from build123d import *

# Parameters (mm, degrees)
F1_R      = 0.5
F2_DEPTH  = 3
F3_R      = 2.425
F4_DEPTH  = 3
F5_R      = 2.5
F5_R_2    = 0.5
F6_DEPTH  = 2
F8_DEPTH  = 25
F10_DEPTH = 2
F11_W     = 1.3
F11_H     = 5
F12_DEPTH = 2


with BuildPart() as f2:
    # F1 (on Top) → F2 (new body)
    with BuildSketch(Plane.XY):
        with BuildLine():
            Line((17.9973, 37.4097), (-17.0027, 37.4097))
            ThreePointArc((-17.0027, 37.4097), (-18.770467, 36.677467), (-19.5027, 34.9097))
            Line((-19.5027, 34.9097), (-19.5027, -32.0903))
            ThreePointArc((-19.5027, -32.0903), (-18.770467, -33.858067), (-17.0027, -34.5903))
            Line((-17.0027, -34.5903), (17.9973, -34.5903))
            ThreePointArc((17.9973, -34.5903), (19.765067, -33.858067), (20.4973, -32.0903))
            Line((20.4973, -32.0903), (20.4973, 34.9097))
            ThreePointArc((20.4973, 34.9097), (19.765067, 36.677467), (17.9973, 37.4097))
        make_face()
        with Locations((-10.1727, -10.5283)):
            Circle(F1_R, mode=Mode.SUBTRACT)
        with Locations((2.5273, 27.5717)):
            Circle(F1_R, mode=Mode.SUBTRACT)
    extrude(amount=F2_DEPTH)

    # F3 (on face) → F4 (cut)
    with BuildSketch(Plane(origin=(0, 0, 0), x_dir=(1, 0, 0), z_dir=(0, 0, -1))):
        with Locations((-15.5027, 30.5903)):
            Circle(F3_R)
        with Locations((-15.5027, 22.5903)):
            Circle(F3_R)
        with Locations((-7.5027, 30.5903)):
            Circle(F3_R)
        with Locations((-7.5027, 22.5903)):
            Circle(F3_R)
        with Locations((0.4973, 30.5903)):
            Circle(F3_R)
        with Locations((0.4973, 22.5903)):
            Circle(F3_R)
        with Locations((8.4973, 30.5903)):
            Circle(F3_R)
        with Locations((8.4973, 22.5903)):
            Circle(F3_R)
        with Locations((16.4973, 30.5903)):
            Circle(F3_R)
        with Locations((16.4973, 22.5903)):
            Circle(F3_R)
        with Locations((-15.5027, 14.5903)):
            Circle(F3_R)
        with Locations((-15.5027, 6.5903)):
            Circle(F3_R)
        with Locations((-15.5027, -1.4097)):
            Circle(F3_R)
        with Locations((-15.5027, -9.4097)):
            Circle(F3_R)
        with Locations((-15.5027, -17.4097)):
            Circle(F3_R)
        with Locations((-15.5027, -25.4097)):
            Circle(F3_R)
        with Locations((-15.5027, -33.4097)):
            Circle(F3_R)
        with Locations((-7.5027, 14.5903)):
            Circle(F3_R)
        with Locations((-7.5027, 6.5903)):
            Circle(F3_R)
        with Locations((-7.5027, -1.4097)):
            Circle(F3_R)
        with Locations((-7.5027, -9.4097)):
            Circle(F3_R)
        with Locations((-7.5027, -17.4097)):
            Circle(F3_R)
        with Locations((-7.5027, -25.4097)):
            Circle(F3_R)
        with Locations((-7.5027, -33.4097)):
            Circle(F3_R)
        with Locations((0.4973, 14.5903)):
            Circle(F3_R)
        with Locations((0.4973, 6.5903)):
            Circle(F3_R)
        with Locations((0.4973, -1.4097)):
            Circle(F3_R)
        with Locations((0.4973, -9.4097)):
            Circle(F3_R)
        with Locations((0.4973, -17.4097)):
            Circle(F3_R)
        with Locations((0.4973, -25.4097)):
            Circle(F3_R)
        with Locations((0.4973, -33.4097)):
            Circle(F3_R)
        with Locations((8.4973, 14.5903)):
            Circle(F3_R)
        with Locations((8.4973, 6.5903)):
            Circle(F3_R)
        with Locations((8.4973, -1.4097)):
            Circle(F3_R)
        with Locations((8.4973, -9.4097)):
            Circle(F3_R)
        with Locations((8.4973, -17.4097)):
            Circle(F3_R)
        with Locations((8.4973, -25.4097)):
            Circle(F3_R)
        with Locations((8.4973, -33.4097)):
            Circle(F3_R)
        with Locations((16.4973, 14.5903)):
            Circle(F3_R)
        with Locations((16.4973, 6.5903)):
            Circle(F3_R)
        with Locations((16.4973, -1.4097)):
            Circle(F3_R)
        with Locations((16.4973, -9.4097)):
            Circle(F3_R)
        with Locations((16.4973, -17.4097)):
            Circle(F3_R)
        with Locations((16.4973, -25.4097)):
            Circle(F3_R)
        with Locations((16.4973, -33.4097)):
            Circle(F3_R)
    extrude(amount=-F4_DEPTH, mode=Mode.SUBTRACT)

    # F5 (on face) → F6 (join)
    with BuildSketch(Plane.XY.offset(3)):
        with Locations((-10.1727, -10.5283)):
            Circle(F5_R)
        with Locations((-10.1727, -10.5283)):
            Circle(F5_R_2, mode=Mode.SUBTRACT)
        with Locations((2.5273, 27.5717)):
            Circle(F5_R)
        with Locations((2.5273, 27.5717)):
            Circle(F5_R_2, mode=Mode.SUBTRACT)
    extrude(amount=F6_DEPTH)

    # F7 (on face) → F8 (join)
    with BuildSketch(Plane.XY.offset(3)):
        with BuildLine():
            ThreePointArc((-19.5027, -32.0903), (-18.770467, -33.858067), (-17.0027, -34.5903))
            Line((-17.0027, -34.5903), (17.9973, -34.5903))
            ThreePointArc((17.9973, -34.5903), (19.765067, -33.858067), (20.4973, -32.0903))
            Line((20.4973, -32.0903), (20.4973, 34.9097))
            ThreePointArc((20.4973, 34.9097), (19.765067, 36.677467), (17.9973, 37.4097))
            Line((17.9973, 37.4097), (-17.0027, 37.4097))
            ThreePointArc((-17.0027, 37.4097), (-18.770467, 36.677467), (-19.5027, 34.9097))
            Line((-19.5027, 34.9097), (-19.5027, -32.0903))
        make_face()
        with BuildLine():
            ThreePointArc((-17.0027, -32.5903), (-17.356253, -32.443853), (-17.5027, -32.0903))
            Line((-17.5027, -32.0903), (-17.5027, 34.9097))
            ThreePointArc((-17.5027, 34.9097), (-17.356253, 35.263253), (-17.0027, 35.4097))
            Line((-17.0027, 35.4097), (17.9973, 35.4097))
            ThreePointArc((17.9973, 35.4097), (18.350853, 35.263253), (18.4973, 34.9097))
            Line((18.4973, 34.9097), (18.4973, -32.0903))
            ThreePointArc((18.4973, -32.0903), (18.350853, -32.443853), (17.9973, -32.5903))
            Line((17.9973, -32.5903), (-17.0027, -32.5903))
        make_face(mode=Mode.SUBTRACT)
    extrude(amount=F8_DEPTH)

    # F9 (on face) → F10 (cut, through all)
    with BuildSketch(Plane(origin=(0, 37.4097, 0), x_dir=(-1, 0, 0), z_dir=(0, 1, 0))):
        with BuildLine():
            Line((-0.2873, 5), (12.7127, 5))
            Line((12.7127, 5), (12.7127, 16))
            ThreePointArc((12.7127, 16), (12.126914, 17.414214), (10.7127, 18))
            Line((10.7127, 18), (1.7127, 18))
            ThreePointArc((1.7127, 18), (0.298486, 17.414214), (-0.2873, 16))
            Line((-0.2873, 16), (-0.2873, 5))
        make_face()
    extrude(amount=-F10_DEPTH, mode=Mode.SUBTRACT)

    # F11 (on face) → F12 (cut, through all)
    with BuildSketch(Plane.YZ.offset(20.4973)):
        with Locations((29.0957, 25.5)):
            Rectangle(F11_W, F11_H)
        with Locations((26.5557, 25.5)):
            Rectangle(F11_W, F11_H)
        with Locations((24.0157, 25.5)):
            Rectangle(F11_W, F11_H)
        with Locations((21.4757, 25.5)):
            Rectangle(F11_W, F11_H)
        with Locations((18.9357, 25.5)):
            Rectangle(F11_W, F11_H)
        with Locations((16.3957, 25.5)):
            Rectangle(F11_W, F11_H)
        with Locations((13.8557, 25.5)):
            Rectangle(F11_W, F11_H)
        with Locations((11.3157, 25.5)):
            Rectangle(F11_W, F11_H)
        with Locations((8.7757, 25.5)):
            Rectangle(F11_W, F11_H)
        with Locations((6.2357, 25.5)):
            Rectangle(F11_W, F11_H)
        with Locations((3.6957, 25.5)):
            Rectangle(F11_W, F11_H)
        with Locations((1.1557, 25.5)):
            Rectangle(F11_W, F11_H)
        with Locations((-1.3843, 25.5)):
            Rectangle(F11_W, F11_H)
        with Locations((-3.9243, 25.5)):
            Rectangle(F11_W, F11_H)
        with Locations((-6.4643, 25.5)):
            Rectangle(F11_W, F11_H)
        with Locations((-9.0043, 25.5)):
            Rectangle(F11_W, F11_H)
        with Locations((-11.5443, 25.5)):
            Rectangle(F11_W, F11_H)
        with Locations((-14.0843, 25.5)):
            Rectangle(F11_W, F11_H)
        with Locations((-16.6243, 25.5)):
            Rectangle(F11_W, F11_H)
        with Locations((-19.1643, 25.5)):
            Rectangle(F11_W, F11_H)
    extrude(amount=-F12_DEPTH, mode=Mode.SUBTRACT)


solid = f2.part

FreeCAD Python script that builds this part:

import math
import FreeCAD as App
import Part
import Sketcher

V = App.Vector

doc = App.newDocument("Part")
body = doc.addObject("PartDesign::Body", "Body")

sketch1 = doc.addObject("Sketcher::SketchObject", "Sketch")
body.addObject(sketch1)
sketch1.AttachmentSupport = (doc.XY_Plane, [""])
sketch1.MapMode = "FlatFace"
sketch1.addGeometry(Part.LineSegment(V(18, 37.4, 0), V(-17, 37.4, 0)), False)
sketch1.addGeometry(Part.ArcOfCircle(Part.Circle(V(-17, 34.9, 0), V(0, 0, 1), 2.5), math.radians(90), math.radians(180)), False)
sketch1.addGeometry(Part.LineSegment(V(-19.5, 34.9, 0), V(-19.5, -32.1, 0)), False)
sketch1.addGeometry(Part.ArcOfCircle(Part.Circle(V(-17, -32.1, 0), V(0, 0, 1), 2.5), math.radians(180), math.radians(270)), False)
sketch1.addGeometry(Part.LineSegment(V(-17, -34.6, 0), V(18, -34.6, 0)), False)
sketch1.addGeometry(Part.ArcOfCircle(Part.Circle(V(18, -32.1, 0), V(0, 0, 1), 2.5), math.radians(-90), math.radians(0)), False)
sketch1.addGeometry(Part.LineSegment(V(20.5, -32.1, 0), V(20.5, 34.9, 0)), False)
sketch1.addGeometry(Part.ArcOfCircle(Part.Circle(V(18, 34.9, 0), V(0, 0, 1), 2.5), math.radians(0), math.radians(90)), False)
sketch1.addGeometry(Part.Circle(V(-10.2, -10.5, 0), V(0, 0, 1), 0.5), False)
sketch1.addGeometry(Part.Circle(V(2.5, 27.6, 0), V(0, 0, 1), 0.5), False)
sketch1.addConstraint(Sketcher.Constraint("Tangent", 0, 2, 1, 1))
sketch1.addConstraint(Sketcher.Constraint("Tangent", 1, 2, 2, 1))
sketch1.addConstraint(Sketcher.Constraint("Tangent", 2, 2, 3, 1))
sketch1.addConstraint(Sketcher.Constraint("Tangent", 3, 2, 4, 1))
sketch1.addConstraint(Sketcher.Constraint("Tangent", 4, 2, 5, 1))
sketch1.addConstraint(Sketcher.Constraint("Tangent", 5, 2, 6, 1))
sketch1.addConstraint(Sketcher.Constraint("Tangent", 6, 2, 7, 1))
sketch1.addConstraint(Sketcher.Constraint("Tangent", 7, 2, 0, 1))
sketch1.addConstraint(Sketcher.Constraint("Horizontal", 0))
sketch1.addConstraint(Sketcher.Constraint("Vertical", 2))
sketch1.addConstraint(Sketcher.Constraint("Horizontal", 4))
sketch1.addConstraint(Sketcher.Constraint("Vertical", 6))
sketch1.addConstraint(Sketcher.Constraint("Equal", 1, 3))
sketch1.addConstraint(Sketcher.Constraint("Equal", 3, 5))
sketch1.addConstraint(Sketcher.Constraint("Equal", 5, 7))
sketch1.addConstraint(Sketcher.Constraint("Equal", 8, 9))
sketch1.addConstraint(Sketcher.Constraint("Diameter", 8, 1.0))
sketch1.addConstraint(Sketcher.Constraint("Radius", 1, 2.5))
sketch1.addConstraint(Sketcher.Constraint("DistanceX", 0, 2, 0, 1, 35.0))
sketch1.addConstraint(Sketcher.Constraint("DistanceY", 2, 2, 2, 1, 67.0))
sketch1.addConstraint(Sketcher.Constraint("DistanceX", 8, 3, 9, 3, 12.7))
sketch1.addConstraint(Sketcher.Constraint("DistanceY", 8, 3, 9, 3, 38.1))
sketch1.addConstraint(Sketcher.Constraint("DistanceX", 3, 3, 8, 3, 6.83))
sketch1.addConstraint(Sketcher.Constraint("DistanceY", 3, 3, 8, 3, 21.562))
sketch1.addConstraint(Sketcher.Constraint("DistanceX", 1, 3, -1, 1, 17.0027))
sketch1.addConstraint(Sketcher.Constraint("DistanceY", -1, 1, 1, 3, 34.9097))
pad1 = doc.addObject("PartDesign::Pad", "Pad")
body.addObject(pad1)
pad1.Profile = sketch1
pad1.Length = 3

sketch2 = doc.addObject("Sketcher::SketchObject", "Sketch001")
body.addObject(sketch2)
sketch2.AttachmentSupport = (doc.XY_Plane, [""])
sketch2.MapMode = "FlatFace"
sketch2.addGeometry(Part.Circle(V(-15.5, -30.6, 0), V(0, 0, 1), 2.4), False)
sketch2.addGeometry(Part.Circle(V(-15.5, -22.6, 0), V(0, 0, 1), 2.4), False)
sketch2.addGeometry(Part.Circle(V(-7.5, -30.6, 0), V(0, 0, 1), 2.4), False)
sketch2.addGeometry(Part.Circle(V(-7.5, -22.6, 0), V(0, 0, 1), 2.4), False)
sketch2.addGeometry(Part.Circle(V(0.5, -30.6, 0), V(0, 0, 1), 2.4), False)
sketch2.addGeometry(Part.Circle(V(0.5, -22.6, 0), V(0, 0, 1), 2.4), False)
sketch2.addGeometry(Part.Circle(V(8.5, -30.6, 0), V(0, 0, 1), 2.4), False)
sketch2.addGeometry(Part.Circle(V(8.5, -22.6, 0), V(0, 0, 1), 2.4), False)
sketch2.addGeometry(Part.Circle(V(16.5, -30.6, 0), V(0, 0, 1), 2.4), False)
sketch2.addGeometry(Part.Circle(V(16.5, -22.6, 0), V(0, 0, 1), 2.4), False)
sketch2.addGeometry(Part.Circle(V(-15.5, -14.6, 0), V(0, 0, 1), 2.4), False)
sketch2.addGeometry(Part.Circle(V(-15.5, -6.6, 0), V(0, 0, 1), 2.4), False)
sketch2.addGeometry(Part.Circle(V(-15.5, 1.4, 0), V(0, 0, 1), 2.4), False)
sketch2.addGeometry(Part.Circle(V(-15.5, 9.4, 0), V(0, 0, 1), 2.4), False)
sketch2.addGeometry(Part.Circle(V(-15.5, 17.4, 0), V(0, 0, 1), 2.4), False)
sketch2.addGeometry(Part.Circle(V(-15.5, 25.4, 0), V(0, 0, 1), 2.4), False)
sketch2.addGeometry(Part.Circle(V(-15.5, 33.4, 0), V(0, 0, 1), 2.4), False)
sketch2.addGeometry(Part.Circle(V(-7.5, -14.6, 0), V(0, 0, 1), 2.4), False)
sketch2.addGeometry(Part.Circle(V(-7.5, -6.6, 0), V(0, 0, 1), 2.4), False)
sketch2.addGeometry(Part.Circle(V(-7.5, 1.4, 0), V(0, 0, 1), 2.4), False)
sketch2.addGeometry(Part.Circle(V(-7.5, 9.4, 0), V(0, 0, 1), 2.4), False)
sketch2.addGeometry(Part.Circle(V(-7.5, 17.4, 0), V(0, 0, 1), 2.4), False)
sketch2.addGeometry(Part.Circle(V(-7.5, 25.4, 0), V(0, 0, 1), 2.4), False)
sketch2.addGeometry(Part.Circle(V(-7.5, 33.4, 0), V(0, 0, 1), 2.4), False)
sketch2.addGeometry(Part.Circle(V(0.5, -14.6, 0), V(0, 0, 1), 2.4), False)
sketch2.addGeometry(Part.Circle(V(0.5, -6.6, 0), V(0, 0, 1), 2.4), False)
sketch2.addGeometry(Part.Circle(V(0.5, 1.4, 0), V(0, 0, 1), 2.4), False)
sketch2.addGeometry(Part.Circle(V(0.5, 9.4, 0), V(0, 0, 1), 2.4), False)
sketch2.addGeometry(Part.Circle(V(0.5, 17.4, 0), V(0, 0, 1), 2.4), False)
sketch2.addGeometry(Part.Circle(V(0.5, 25.4, 0), V(0, 0, 1), 2.4), False)
sketch2.addGeometry(Part.Circle(V(0.5, 33.4, 0), V(0, 0, 1), 2.4), False)
sketch2.addGeometry(Part.Circle(V(8.5, -14.6, 0), V(0, 0, 1), 2.4), False)
sketch2.addGeometry(Part.Circle(V(8.5, -6.6, 0), V(0, 0, 1), 2.4), False)
sketch2.addGeometry(Part.Circle(V(8.5, 1.4, 0), V(0, 0, 1), 2.4), False)
sketch2.addGeometry(Part.Circle(V(8.5, 9.4, 0), V(0, 0, 1), 2.4), False)
sketch2.addGeometry(Part.Circle(V(8.5, 17.4, 0), V(0, 0, 1), 2.4), False)
sketch2.addGeometry(Part.Circle(V(8.5, 25.4, 0), V(0, 0, 1), 2.4), False)
sketch2.addGeometry(Part.Circle(V(8.5, 33.4, 0), V(0, 0, 1), 2.4), False)
sketch2.addGeometry(Part.Circle(V(16.5, -14.6, 0), V(0, 0, 1), 2.4), False)
sketch2.addGeometry(Part.Circle(V(16.5, -6.6, 0), V(0, 0, 1), 2.4), False)
sketch2.addGeometry(Part.Circle(V(16.5, 1.4, 0), V(0, 0, 1), 2.4), False)
sketch2.addGeometry(Part.Circle(V(16.5, 9.4, 0), V(0, 0, 1), 2.4), False)
sketch2.addGeometry(Part.Circle(V(16.5, 17.4, 0), V(0, 0, 1), 2.4), False)
sketch2.addGeometry(Part.Circle(V(16.5, 25.4, 0), V(0, 0, 1), 2.4), False)
sketch2.addGeometry(Part.Circle(V(16.5, 33.4, 0), V(0, 0, 1), 2.4), False)
sketch2.addConstraint(Sketcher.Constraint("Equal", 0, 1))
sketch2.addConstraint(Sketcher.Constraint("Equal", 1, 2))
sketch2.addConstraint(Sketcher.Constraint("Equal", 2, 3))
sketch2.addConstraint(Sketcher.Constraint("Equal", 3, 4))
sketch2.addConstraint(Sketcher.Constraint("Equal", 4, 5))
sketch2.addConstraint(Sketcher.Constraint("Equal", 5, 6))
sketch2.addConstraint(Sketcher.Constraint("Equal", 6, 7))
sketch2.addConstraint(Sketcher.Constraint("Equal", 7, 8))
sketch2.addConstraint(Sketcher.Constraint("Equal", 8, 9))
sketch2.addConstraint(Sketcher.Constraint("Equal", 9, 10))
sketch2.addConstraint(Sketcher.Constraint("Equal", 10, 11))
sketch2.addConstraint(Sketcher.Constraint("Equal", 11, 12))
sketch2.addConstraint(Sketcher.Constraint("Equal", 12, 13))
sketch2.addConstraint(Sketcher.Constraint("Equal", 13, 14))
sketch2.addConstraint(Sketcher.Constraint("Equal", 14, 15))
sketch2.addConstraint(Sketcher.Constraint("Equal", 15, 16))
sketch2.addConstraint(Sketcher.Constraint("Equal", 16, 17))
sketch2.addConstraint(Sketcher.Constraint("Equal", 17, 18))
sketch2.addConstraint(Sketcher.Constraint("Equal", 18, 19))
sketch2.addConstraint(Sketcher.Constraint("Equal", 19, 20))
sketch2.addConstraint(Sketcher.Constraint("Equal", 20, 21))
sketch2.addConstraint(Sketcher.Constraint("Equal", 21, 22))
sketch2.addConstraint(Sketcher.Constraint("Equal", 22, 23))
sketch2.addConstraint(Sketcher.Constraint("Equal", 23, 24))
sketch2.addConstraint(Sketcher.Constraint("Equal", 24, 25))
sketch2.addConstraint(Sketcher.Constraint("Equal", 25, 26))
sketch2.addConstraint(Sketcher.Constraint("Equal", 26, 27))
sketch2.addConstraint(Sketcher.Constraint("Equal", 27, 28))
sketch2.addConstraint(Sketcher.Constraint("Equal", 28, 29))
sketch2.addConstraint(Sketcher.Constraint("Equal", 29, 30))
sketch2.addConstraint(Sketcher.Constraint("Equal", 30, 31))
sketch2.addConstraint(Sketcher.Constraint("Equal", 31, 32))
sketch2.addConstraint(Sketcher.Constraint("Equal", 32, 33))
sketch2.addConstraint(Sketcher.Constraint("Equal", 33, 34))
sketch2.addConstraint(Sketcher.Constraint("Equal", 34, 35))
sketch2.addConstraint(Sketcher.Constraint("Equal", 35, 36))
sketch2.addConstraint(Sketcher.Constraint("Equal", 36, 37))
sketch2.addConstraint(Sketcher.Constraint("Equal", 37, 38))
sketch2.addConstraint(Sketcher.Constraint("Equal", 38, 39))
sketch2.addConstraint(Sketcher.Constraint("Equal", 39, 40))
sketch2.addConstraint(Sketcher.Constraint("Equal", 40, 41))
sketch2.addConstraint(Sketcher.Constraint("Equal", 41, 42))
sketch2.addConstraint(Sketcher.Constraint("Equal", 42, 43))
sketch2.addConstraint(Sketcher.Constraint("Equal", 43, 44))
sketch2.addConstraint(Sketcher.Constraint("Horizontal", 0, 3, 2, 3))
sketch2.addConstraint(Sketcher.Constraint("Horizontal", 1, 3, 3, 3))
sketch2.addConstraint(Sketcher.Constraint("Horizontal", 2, 3, 4, 3))
sketch2.addConstraint(Sketcher.Constraint("Horizontal", 3, 3, 5, 3))
sketch2.addConstraint(Sketcher.Constraint("Horizontal", 4, 3, 6, 3))
sketch2.addConstraint(Sketcher.Constraint("Horizontal", 5, 3, 7, 3))
sketch2.addConstraint(Sketcher.Constraint("Horizontal", 6, 3, 8, 3))
sketch2.addConstraint(Sketcher.Constraint("Horizontal", 7, 3, 9, 3))
sketch2.addConstraint(Sketcher.Constraint("Horizontal", 10, 3, 17, 3))
sketch2.addConstraint(Sketcher.Constraint("Horizontal", 11, 3, 18, 3))
sketch2.addConstraint(Sketcher.Constraint("Horizontal", 12, 3, 19, 3))
sketch2.addConstraint(Sketcher.Constraint("Horizontal", 13, 3, 20, 3))
sketch2.addConstraint(Sketcher.Constraint("Horizontal", 14, 3, 21, 3))
sketch2.addConstraint(Sketcher.Constraint("Horizontal", 15, 3, 22, 3))
sketch2.addConstraint(Sketcher.Constraint("Horizontal", 16, 3, 23, 3))
sketch2.addConstraint(Sketcher.Constraint("Horizontal", 17, 3, 24, 3))
sketch2.addConstraint(Sketcher.Constraint("Horizontal", 18, 3, 25, 3))
sketch2.addConstraint(Sketcher.Constraint("Horizontal", 19, 3, 26, 3))
sketch2.addConstraint(Sketcher.Constraint("Horizontal", 20, 3, 27, 3))
sketch2.addConstraint(Sketcher.Constraint("Horizontal", 21, 3, 28, 3))
sketch2.addConstraint(Sketcher.Constraint("Horizontal", 22, 3, 29, 3))
sketch2.addConstraint(Sketcher.Constraint("Horizontal", 23, 3, 30, 3))
sketch2.addConstraint(Sketcher.Constraint("Horizontal", 24, 3, 31, 3))
sketch2.addConstraint(Sketcher.Constraint("Horizontal", 25, 3, 32, 3))
sketch2.addConstraint(Sketcher.Constraint("Horizontal", 26, 3, 33, 3))
sketch2.addConstraint(Sketcher.Constraint("Horizontal", 27, 3, 34, 3))
sketch2.addConstraint(Sketcher.Constraint("Horizontal", 28, 3, 35, 3))
sketch2.addConstraint(Sketcher.Constraint("Horizontal", 29, 3, 36, 3))
sketch2.addConstraint(Sketcher.Constraint("Horizontal", 30, 3, 37, 3))
sketch2.addConstraint(Sketcher.Constraint("Horizontal", 31, 3, 38, 3))
sketch2.addConstraint(Sketcher.Constraint("Horizontal", 32, 3, 39, 3))
sketch2.addConstraint(Sketcher.Constraint("Horizontal", 33, 3, 40, 3))
sketch2.addConstraint(Sketcher.Constraint("Horizontal", 34, 3, 41, 3))
sketch2.addConstraint(Sketcher.Constraint("Horizontal", 35, 3, 42, 3))
sketch2.addConstraint(Sketcher.Constraint("Horizontal", 36, 3, 43, 3))
sketch2.addConstraint(Sketcher.Constraint("Horizontal", 37, 3, 44, 3))
sketch2.addConstraint(Sketcher.Constraint("Vertical", 0, 3, 1, 3))
sketch2.addConstraint(Sketcher.Constraint("Vertical", 2, 3, 3, 3))
sketch2.addConstraint(Sketcher.Constraint("Vertical", 4, 3, 5, 3))
sketch2.addConstraint(Sketcher.Constraint("Vertical", 6, 3, 7, 3))
sketch2.addConstraint(Sketcher.Constraint("Vertical", 8, 3, 9, 3))
sketch2.addConstraint(Sketcher.Constraint("Vertical", 1, 3, 10, 3))
sketch2.addConstraint(Sketcher.Constraint("Vertical", 10, 3, 11, 3))
sketch2.addConstraint(Sketcher.Constraint("Vertical", 11, 3, 12, 3))
sketch2.addConstraint(Sketcher.Constraint("Vertical", 12, 3, 13, 3))
sketch2.addConstraint(Sketcher.Constraint("Vertical", 13, 3, 14, 3))
sketch2.addConstraint(Sketcher.Constraint("Vertical", 14, 3, 15, 3))
sketch2.addConstraint(Sketcher.Constraint("Vertical", 15, 3, 16, 3))
sketch2.addConstraint(Sketcher.Constraint("Vertical", 3, 3, 17, 3))
sketch2.addConstraint(Sketcher.Constraint("Vertical", 17, 3, 18, 3))
sketch2.addConstraint(Sketcher.Constraint("Vertical", 18, 3, 19, 3))
sketch2.addConstraint(Sketcher.Constraint("Vertical", 19, 3, 20, 3))
sketch2.addConstraint(Sketcher.Constraint("Vertical", 20, 3, 21, 3))
sketch2.addConstraint(Sketcher.Constraint("Vertical", 21, 3, 22, 3))
sketch2.addConstraint(Sketcher.Constraint("Vertical", 22, 3, 23, 3))
sketch2.addConstraint(Sketcher.Constraint("Vertical", 5, 3, 24, 3))
sketch2.addConstraint(Sketcher.Constraint("Vertical", 24, 3, 25, 3))
sketch2.addConstraint(Sketcher.Constraint("Vertical", 25, 3, 26, 3))
sketch2.addConstraint(Sketcher.Constraint("Vertical", 26, 3, 27, 3))
sketch2.addConstraint(Sketcher.Constraint("Vertical", 27, 3, 28, 3))
sketch2.addConstraint(Sketcher.Constraint("Vertical", 28, 3, 29, 3))
sketch2.addConstraint(Sketcher.Constraint("Vertical", 29, 3, 30, 3))
sketch2.addConstraint(Sketcher.Constraint("Vertical", 7, 3, 31, 3))
sketch2.addConstraint(Sketcher.Constraint("Vertical", 31, 3, 32, 3))
sketch2.addConstraint(Sketcher.Constraint("Vertical", 32, 3, 33, 3))
sketch2.addConstraint(Sketcher.Constraint("Vertical", 33, 3, 34, 3))
sketch2.addConstraint(Sketcher.Constraint("Vertical", 34, 3, 35, 3))
sketch2.addConstraint(Sketcher.Constraint("Vertical", 35, 3, 36, 3))
sketch2.addConstraint(Sketcher.Constraint("Vertical", 36, 3, 37, 3))
sketch2.addConstraint(Sketcher.Constraint("Vertical", 9, 3, 38, 3))
sketch2.addConstraint(Sketcher.Constraint("Vertical", 38, 3, 39, 3))
sketch2.addConstraint(Sketcher.Constraint("Vertical", 39, 3, 40, 3))
sketch2.addConstraint(Sketcher.Constraint("Vertical", 40, 3, 41, 3))
sketch2.addConstraint(Sketcher.Constraint("Vertical", 41, 3, 42, 3))
sketch2.addConstraint(Sketcher.Constraint("Vertical", 42, 3, 43, 3))
sketch2.addConstraint(Sketcher.Constraint("Vertical", 43, 3, 44, 3))
sketch2.addConstraint(Sketcher.Constraint("Diameter", 0, 4.85))
sketch2.addConstraint(Sketcher.Constraint("DistanceY", 0, 3, 1, 3, 8.0))
sketch2.addConstraint(Sketcher.Constraint("DistanceX", 0, 3, 2, 3, 8.0))
sketch2.addConstraint(Sketcher.Constraint("DistanceX", 2, 3, 4, 3, 8.0))
sketch2.addConstraint(Sketcher.Constraint("DistanceX", 4, 3, 6, 3, 8.0))
sketch2.addConstraint(Sketcher.Constraint("DistanceX", 6, 3, 8, 3, 8.0))
sketch2.addConstraint(Sketcher.Constraint("DistanceY", 1, 3, 10, 3, 8.0))
sketch2.addConstraint(Sketcher.Constraint("DistanceY", 10, 3, 11, 3, 8.0))
sketch2.addConstraint(Sketcher.Constraint("DistanceY", 11, 3, 12, 3, 8.0))
sketch2.addConstraint(Sketcher.Constraint("DistanceY", 12, 3, 13, 3, 8.0))
sketch2.addConstraint(Sketcher.Constraint("DistanceY", 13, 3, 14, 3, 8.0))
sketch2.addConstraint(Sketcher.Constraint("DistanceY", 14, 3, 15, 3, 8.0))
sketch2.addConstraint(Sketcher.Constraint("DistanceY", 15, 3, 16, 3, 8.0))
sketch2.addConstraint(Sketcher.Constraint("DistanceX", 0, 3, -1, 1, 15.5027))
sketch2.addConstraint(Sketcher.Constraint("DistanceY", 0, 3, -1, 1, 30.5903))
pocket1 = doc.addObject("PartDesign::Pocket", "Pocket")
body.addObject(pocket1)
pocket1.Profile = sketch2
pocket1.Length = 3
pocket1.Reversed = True

sketch3 = doc.addObject("Sketcher::SketchObject", "Sketch002")
body.addObject(sketch3)
sketch3.AttachmentSupport = (doc.XY_Plane, [""])
sketch3.MapMode = "FlatFace"
sketch3.AttachmentOffset = App.Placement(V(0, 0, 3), App.Rotation())
sketch3.addGeometry(Part.Circle(V(-10.2, -10.5, 0), V(0, 0, 1), 2.5), False)
sketch3.addGeometry(Part.Circle(V(-10.2, -10.5, 0), V(0, 0, 1), 0.5), False)
sketch3.addGeometry(Part.Circle(V(2.5, 27.6, 0), V(0, 0, 1), 2.5), False)
sketch3.addGeometry(Part.Circle(V(2.5, 27.6, 0), V(0, 0, 1), 0.5), False)
sketch3.addConstraint(Sketcher.Constraint("Coincident", 1, 3, 0, 3))
sketch3.addConstraint(Sketcher.Constraint("Coincident", 3, 3, 2, 3))
sketch3.addConstraint(Sketcher.Constraint("Equal", 0, 2))
sketch3.addConstraint(Sketcher.Constraint("Equal", 1, 3))
sketch3.addConstraint(Sketcher.Constraint("Diameter", 0, 5.0))
sketch3.addConstraint(Sketcher.Constraint("Diameter", 1, 1.0))
sketch3.addConstraint(Sketcher.Constraint("DistanceX", 0, 3, 2, 3, 12.7))
sketch3.addConstraint(Sketcher.Constraint("DistanceY", 0, 3, 2, 3, 38.1))
sketch3.addConstraint(Sketcher.Constraint("DistanceX", 0, 3, -1, 1, 10.1727))
sketch3.addConstraint(Sketcher.Constraint("DistanceY", 0, 3, -1, 1, 10.5283))
pad2 = doc.addObject("PartDesign::Pad", "Pad001")
body.addObject(pad2)
pad2.Profile = sketch3
pad2.Length = 2

sketch4 = doc.addObject("Sketcher::SketchObject", "Sketch003")
body.addObject(sketch4)
sketch4.AttachmentSupport = (doc.XY_Plane, [""])
sketch4.MapMode = "FlatFace"
sketch4.AttachmentOffset = App.Placement(V(0, 0, 3), App.Rotation())
sketch4.addGeometry(Part.ArcOfCircle(Part.Circle(V(-17, -32.1, 0), V(0, 0, 1), 2.5), math.radians(180), math.radians(270)), False)
sketch4.addGeometry(Part.LineSegment(V(-17, -34.6, 0), V(18, -34.6, 0)), False)
sketch4.addGeometry(Part.ArcOfCircle(Part.Circle(V(18, -32.1, 0), V(0, 0, 1), 2.5), math.radians(-90), math.radians(0)), False)
sketch4.addGeometry(Part.LineSegment(V(20.5, -32.1, 0), V(20.5, 34.9, 0)), False)
sketch4.addGeometry(Part.ArcOfCircle(Part.Circle(V(18, 34.9, 0), V(0, 0, 1), 2.5), math.radians(0), math.radians(90)), False)
sketch4.addGeometry(Part.LineSegment(V(18, 37.4, 0), V(-17, 37.4, 0)), False)
sketch4.addGeometry(Part.ArcOfCircle(Part.Circle(V(-17, 34.9, 0), V(0, 0, 1), 2.5), math.radians(90), math.radians(180)), False)
sketch4.addGeometry(Part.LineSegment(V(-19.5, 34.9, 0), V(-19.5, -32.1, 0)), False)
sketch4.addGeometry(Part.LineSegment(V(18, -32.6, 0), V(-17, -32.6, 0)), False)
sketch4.addGeometry(Part.ArcOfCircle(Part.Circle(V(-17, -32.1, 0), V(0, 0, 1), 0.5), math.radians(-180), math.radians(-90)), False)
sketch4.addGeometry(Part.LineSegment(V(-17.5, -32.1, 0), V(-17.5, 34.9, 0)), False)
sketch4.addGeometry(Part.ArcOfCircle(Part.Circle(V(-17, 34.9, 0), V(0, 0, 1), 0.5), math.radians(90), math.radians(180)), False)
sketch4.addGeometry(Part.LineSegment(V(-17, 35.4, 0), V(18, 35.4, 0)), False)
sketch4.addGeometry(Part.ArcOfCircle(Part.Circle(V(18, 34.9, 0), V(0, 0, 1), 0.5), math.radians(0), math.radians(90)), False)
sketch4.addGeometry(Part.LineSegment(V(18.5, 34.9, 0), V(18.5, -32.1, 0)), False)
sketch4.addGeometry(Part.ArcOfCircle(Part.Circle(V(18, -32.1, 0), V(0, 0, 1), 0.5), math.radians(-90), math.radians(0)), False)
sketch4.addConstraint(Sketcher.Constraint("Tangent", 0, 2, 1, 1))
sketch4.addConstraint(Sketcher.Constraint("Tangent", 1, 2, 2, 1))
sketch4.addConstraint(Sketcher.Constraint("Tangent", 2, 2, 3, 1))
sketch4.addConstraint(Sketcher.Constraint("Tangent", 3, 2, 4, 1))
sketch4.addConstraint(Sketcher.Constraint("Tangent", 4, 2, 5, 1))
sketch4.addConstraint(Sketcher.Constraint("Tangent", 5, 2, 6, 1))
sketch4.addConstraint(Sketcher.Constraint("Tangent", 6, 2, 7, 1))
sketch4.addConstraint(Sketcher.Constraint("Tangent", 7, 2, 0, 1))
sketch4.addConstraint(Sketcher.Constraint("Coincident", 8, 2, 9, 2))
sketch4.addConstraint(Sketcher.Constraint("Coincident", 9, 1, 10, 1))
sketch4.addConstraint(Sketcher.Constraint("Coincident", 10, 2, 11, 2))
sketch4.addConstraint(Sketcher.Constraint("Coincident", 11, 1, 12, 1))
sketch4.addConstraint(Sketcher.Constraint("Coincident", 12, 2, 13, 2))
sketch4.addConstraint(Sketcher.Constraint("Coincident", 13, 1, 14, 1))
sketch4.addConstraint(Sketcher.Constraint("Coincident", 14, 2, 15, 2))
sketch4.addConstraint(Sketcher.Constraint("Coincident", 15, 1, 8, 1))
sketch4.addConstraint(Sketcher.Constraint("Horizontal", 1))
sketch4.addConstraint(Sketcher.Constraint("Vertical", 3))
sketch4.addConstraint(Sketcher.Constraint("Horizontal", 5))
sketch4.addConstraint(Sketcher.Constraint("Vertical", 7))
sketch4.addConstraint(Sketcher.Constraint("Horizontal", 8))
sketch4.addConstraint(Sketcher.Constraint("Vertical", 10))
sketch4.addConstraint(Sketcher.Constraint("Horizontal", 12))
sketch4.addConstraint(Sketcher.Constraint("Vertical", 14))
sketch4.addConstraint(Sketcher.Constraint("Coincident", 9, 3, 0, 3))
sketch4.addConstraint(Sketcher.Constraint("Coincident", 11, 3, 6, 3))
sketch4.addConstraint(Sketcher.Constraint("Coincident", 13, 3, 4, 3))
sketch4.addConstraint(Sketcher.Constraint("Equal", 0, 2))
sketch4.addConstraint(Sketcher.Constraint("Equal", 2, 4))
sketch4.addConstraint(Sketcher.Constraint("Equal", 4, 6))
sketch4.addConstraint(Sketcher.Constraint("Equal", 13, 15))
sketch4.addConstraint(Sketcher.Constraint("Horizontal", 7, 2, 9, 1))
sketch4.addConstraint(Sketcher.Constraint("Horizontal", 6, 2, 10, 2))
sketch4.addConstraint(Sketcher.Constraint("Horizontal", 10, 2, 13, 1))
sketch4.addConstraint(Sketcher.Constraint("Horizontal", 9, 1, 14, 2))
sketch4.addConstraint(Sketcher.Constraint("Vertical", 5, 2, 8, 2))
sketch4.addConstraint(Sketcher.Constraint("Vertical", 8, 2, 11, 1))
sketch4.addConstraint(Sketcher.Constraint("Vertical", 4, 2, 12, 2))
sketch4.addConstraint(Sketcher.Constraint("Vertical", 12, 2, 15, 1))
sketch4.addConstraint(Sketcher.Constraint("Radius", 0, 2.5))
sketch4.addConstraint(Sketcher.Constraint("Radius", 9, 0.500001))
sketch4.addConstraint(Sketcher.Constraint("DistanceX", 1, 1, 1, 2, 35.0))
sketch4.addConstraint(Sketcher.Constraint("DistanceY", 3, 1, 3, 2, 67.0))
sketch4.addConstraint(Sketcher.Constraint("DistanceX", 0, 3, -1, 1, 17.0027))
sketch4.addConstraint(Sketcher.Constraint("DistanceY", 0, 3, -1, 1, 32.0903))
pad3 = doc.addObject("PartDesign::Pad", "Pad002")
body.addObject(pad3)
pad3.Profile = sketch4
pad3.Length = 25

sketch5 = doc.addObject("Sketcher::SketchObject", "Sketch004")
body.addObject(sketch5)
sketch5.AttachmentSupport = (doc.XZ_Plane, [""])
sketch5.MapMode = "FlatFace"
sketch5.AttachmentOffset = App.Placement(V(0, 0, -37.4097), App.Rotation())
sketch5.addGeometry(Part.LineSegment(V(0.3, 5, 0), V(-12.7, 5, 0)), False)
sketch5.addGeometry(Part.LineSegment(V(-12.7, 5, 0), V(-12.7, 16, 0)), False)
sketch5.addGeometry(Part.ArcOfCircle(Part.Circle(V(-10.7, 16, 0), V(0, 0, 1), 2), math.radians(90), math.radians(180)), False)
sketch5.addGeometry(Part.LineSegment(V(-10.7, 18, 0), V(-1.7, 18, 0)), False)
sketch5.addGeometry(Part.ArcOfCircle(Part.Circle(V(-1.7, 16, 0), V(0, 0, 1), 2), math.radians(0), math.radians(90)), False)
sketch5.addGeometry(Part.LineSegment(V(0.3, 16, 0), V(0.3, 5, 0)), False)
sketch5.addConstraint(Sketcher.Constraint("Coincident", 0, 2, 1, 1))
sketch5.addConstraint(Sketcher.Constraint("Tangent", 1, 2, 2, 2))
sketch5.addConstraint(Sketcher.Constraint("Tangent", 2, 1, 3, 1))
sketch5.addConstraint(Sketcher.Constraint("Tangent", 3, 2, 4, 2))
sketch5.addConstraint(Sketcher.Constraint("Tangent", 4, 1, 5, 1))
sketch5.addConstraint(Sketcher.Constraint("Coincident", 5, 2, 0, 1))
sketch5.addConstraint(Sketcher.Constraint("Horizontal", 0))
sketch5.addConstraint(Sketcher.Constraint("Vertical", 1))
sketch5.addConstraint(Sketcher.Constraint("Horizontal", 3))
sketch5.addConstraint(Sketcher.Constraint("Vertical", 5))
sketch5.addConstraint(Sketcher.Constraint("Equal", 2, 4))
sketch5.addConstraint(Sketcher.Constraint("Radius", 2, 1.999999))
sketch5.addConstraint(Sketcher.Constraint("DistanceX", 0, 2, 0, 1, 13.0))
sketch5.addConstraint(Sketcher.Constraint("DistanceY", 1, 1, 1, 2, 11.0))
sketch5.addConstraint(Sketcher.Constraint("DistanceY", -1, 1, 2, 3, 16.000001))
sketch5.addConstraint(Sketcher.Constraint("DistanceX", 2, 3, -1, 1, 10.712701))
pocket2 = doc.addObject("PartDesign::Pocket", "Pocket001")
body.addObject(pocket2)
pocket2.Profile = sketch5
pocket2.Length = 2
pocket2.Reversed = True

sketch6 = doc.addObject("Sketcher::SketchObject", "Sketch005")
body.addObject(sketch6)
sketch6.AttachmentSupport = (doc.YZ_Plane, [""])
sketch6.MapMode = "FlatFace"
sketch6.AttachmentOffset = App.Placement(V(0, 0, 20.4973), App.Rotation())
sketch6.addGeometry(Part.LineSegment(V(28.4, 28, 0), V(28.4, 23, 0)), False)
sketch6.addGeometry(Part.LineSegment(V(28.4, 23, 0), V(29.7, 23, 0)), False)
sketch6.addGeometry(Part.LineSegment(V(29.7, 23, 0), V(29.7, 28, 0)), False)
sketch6.addGeometry(Part.LineSegment(V(29.7, 28, 0), V(28.4, 28, 0)), False)
sketch6.addGeometry(Part.LineSegment(V(25.9, 28, 0), V(25.9, 23, 0)), False)
sketch6.addGeometry(Part.LineSegment(V(25.9, 23, 0), V(27.2, 23, 0)), False)
sketch6.addGeometry(Part.LineSegment(V(27.2, 23, 0), V(27.2, 28, 0)), False)
sketch6.addGeometry(Part.LineSegment(V(27.2, 28, 0), V(25.9, 28, 0)), False)
sketch6.addGeometry(Part.LineSegment(V(23.4, 28, 0), V(23.4, 23, 0)), False)
sketch6.addGeometry(Part.LineSegment(V(23.4, 23, 0), V(24.7, 23, 0)), False)
sketch6.addGeometry(Part.LineSegment(V(24.7, 23, 0), V(24.7, 28, 0)), False)
sketch6.addGeometry(Part.LineSegment(V(24.7, 28, 0), V(23.4, 28, 0)), False)
sketch6.addGeometry(Part.LineSegment(V(20.8, 28, 0), V(20.8, 23, 0)), False)
sketch6.addGeometry(Part.LineSegment(V(20.8, 23, 0), V(22.1, 23, 0)), False)
sketch6.addGeometry(Part.LineSegment(V(22.1, 23, 0), V(22.1, 28, 0)), False)
sketch6.addGeometry(Part.LineSegment(V(22.1, 28, 0), V(20.8, 28, 0)), False)
sketch6.addGeometry(Part.LineSegment(V(18.3, 28, 0), V(18.3, 23, 0)), False)
sketch6.addGeometry(Part.LineSegment(V(18.3, 23, 0), V(19.6, 23, 0)), False)
sketch6.addGeometry(Part.LineSegment(V(19.6, 23, 0), V(19.6, 28, 0)), False)
sketch6.addGeometry(Part.LineSegment(V(19.6, 28, 0), V(18.3, 28, 0)), False)
sketch6.addGeometry(Part.LineSegment(V(15.7, 28, 0), V(15.7, 23, 0)), False)
sketch6.addGeometry(Part.LineSegment(V(15.7, 23, 0), V(17, 23, 0)), False)
sketch6.addGeometry(Part.LineSegment(V(17, 23, 0), V(17, 28, 0)), False)
sketch6.addGeometry(Part.LineSegment(V(17, 28, 0), V(15.7, 28, 0)), False)
sketch6.addGeometry(Part.LineSegment(V(13.2, 28, 0), V(13.2, 23, 0)), False)
sketch6.addGeometry(Part.LineSegment(V(13.2, 23, 0), V(14.5, 23, 0)), False)
sketch6.addGeometry(Part.LineSegment(V(14.5, 23, 0), V(14.5, 28, 0)), False)
sketch6.addGeometry(Part.LineSegment(V(14.5, 28, 0), V(13.2, 28, 0)), False)
sketch6.addGeometry(Part.LineSegment(V(10.7, 28, 0), V(10.7, 23, 0)), False)
sketch6.addGeometry(Part.LineSegment(V(10.7, 23, 0), V(12, 23, 0)), False)
sketch6.addGeometry(Part.LineSegment(V(12, 23, 0), V(12, 28, 0)), False)
sketch6.addGeometry(Part.LineSegment(V(12, 28, 0), V(10.7, 28, 0)), False)
sketch6.addGeometry(Part.LineSegment(V(8.1, 28, 0), V(8.1, 23, 0)), False)
sketch6.addGeometry(Part.LineSegment(V(8.1, 23, 0), V(9.4, 23, 0)), False)
sketch6.addGeometry(Part.LineSegment(V(9.4, 23, 0), V(9.4, 28, 0)), False)
sketch6.addGeometry(Part.LineSegment(V(9.4, 28, 0), V(8.1, 28, 0)), False)
sketch6.addGeometry(Part.LineSegment(V(5.6, 28, 0), V(5.6, 23, 0)), False)
sketch6.addGeometry(Part.LineSegment(V(5.6, 23, 0), V(6.9, 23, 0)), False)
sketch6.addGeometry(Part.LineSegment(V(6.9, 23, 0), V(6.9, 28, 0)), False)
sketch6.addGeometry(Part.LineSegment(V(6.9, 28, 0), V(5.6, 28, 0)), False)
sketch6.addGeometry(Part.LineSegment(V(3, 28, 0), V(3, 23, 0)), False)
sketch6.addGeometry(Part.LineSegment(V(3, 23, 0), V(4.3, 23, 0)), False)
sketch6.addGeometry(Part.LineSegment(V(4.3, 23, 0), V(4.3, 28, 0)), False)
sketch6.addGeometry(Part.LineSegment(V(4.3, 28, 0), V(3, 28, 0)), False)
sketch6.addGeometry(Part.LineSegment(V(0.5, 28, 0), V(0.5, 23, 0)), False)
sketch6.addGeometry(Part.LineSegment(V(0.5, 23, 0), V(1.8, 23, 0)), False)
sketch6.addGeometry(Part.LineSegment(V(1.8, 23, 0), V(1.8, 28, 0)), False)
sketch6.addGeometry(Part.LineSegment(V(1.8, 28, 0), V(0.5, 28, 0)), False)
sketch6.addGeometry(Part.LineSegment(V(-2, 28, 0), V(-2, 23, 0)), False)
sketch6.addGeometry(Part.LineSegment(V(-2, 23, 0), V(-0.7, 23, 0)), False)
sketch6.addGeometry(Part.LineSegment(V(-0.7, 23, 0), V(-0.7, 28, 0)), False)
sketch6.addGeometry(Part.LineSegment(V(-0.7, 28, 0), V(-2, 28, 0)), False)
sketch6.addGeometry(Part.LineSegment(V(-4.6, 28, 0), V(-4.6, 23, 0)), False)
sketch6.addGeometry(Part.LineSegment(V(-4.6, 23, 0), V(-3.3, 23, 0)), False)
sketch6.addGeometry(Part.LineSegment(V(-3.3, 23, 0), V(-3.3, 28, 0)), False)
sketch6.addGeometry(Part.LineSegment(V(-3.3, 28, 0), V(-4.6, 28, 0)), False)
sketch6.addGeometry(Part.LineSegment(V(-7.1, 28, 0), V(-7.1, 23, 0)), False)
sketch6.addGeometry(Part.LineSegment(V(-7.1, 23, 0), V(-5.8, 23, 0)), False)
sketch6.addGeometry(Part.LineSegment(V(-5.8, 23, 0), V(-5.8, 28, 0)), False)
sketch6.addGeometry(Part.LineSegment(V(-5.8, 28, 0), V(-7.1, 28, 0)), False)
sketch6.addGeometry(Part.LineSegment(V(-9.7, 28, 0), V(-9.7, 23, 0)), False)
sketch6.addGeometry(Part.LineSegment(V(-9.7, 23, 0), V(-8.4, 23, 0)), False)
sketch6.addGeometry(Part.LineSegment(V(-8.4, 23, 0), V(-8.4, 28, 0)), False)
sketch6.addGeometry(Part.LineSegment(V(-8.4, 28, 0), V(-9.7, 28, 0)), False)
sketch6.addGeometry(Part.LineSegment(V(-12.2, 28, 0), V(-12.2, 23, 0)), False)
sketch6.addGeometry(Part.LineSegment(V(-12.2, 23, 0), V(-10.9, 23, 0)), False)
sketch6.addGeometry(Part.LineSegment(V(-10.9, 23, 0), V(-10.9, 28, 0)), False)
sketch6.addGeometry(Part.LineSegment(V(-10.9, 28, 0), V(-12.2, 28, 0)), False)
sketch6.addGeometry(Part.LineSegment(V(-14.7, 28, 0), V(-14.7, 23, 0)), False)
sketch6.addGeometry(Part.LineSegment(V(-14.7, 23, 0), V(-13.4, 23, 0)), False)
sketch6.addGeometry(Part.LineSegment(V(-13.4, 23, 0), V(-13.4, 28, 0)), False)
sketch6.addGeometry(Part.LineSegment(V(-13.4, 28, 0), V(-14.7, 28, 0)), False)
sketch6.addGeometry(Part.LineSegment(V(-17.3, 28, 0), V(-17.3, 23, 0)), False)
sketch6.addGeometry(Part.LineSegment(V(-17.3, 23, 0), V(-16, 23, 0)), False)
sketch6.addGeometry(Part.LineSegment(V(-16, 23, 0), V(-16, 28, 0)), False)
sketch6.addGeometry(Part.LineSegment(V(-16, 28, 0), V(-17.3, 28, 0)), False)
sketch6.addGeometry(Part.LineSegment(V(-19.8, 28, 0), V(-19.8, 23, 0)), False)
sketch6.addGeometry(Part.LineSegment(V(-19.8, 23, 0), V(-18.5, 23, 0)), False)
sketch6.addGeometry(Part.LineSegment(V(-18.5, 23, 0), V(-18.5, 28, 0)), False)
sketch6.addGeometry(Part.LineSegment(V(-18.5, 28, 0), V(-19.8, 28, 0)), False)
sketch6.addConstraint(Sketcher.Constraint("Coincident", 0, 2, 1, 1))
sketch6.addConstraint(Sketcher.Constraint("Coincident", 1, 2, 2, 1))
sketch6.addConstraint(Sketcher.Constraint("Coincident", 2, 2, 3, 1))
sketch6.addConstraint(Sketcher.Constraint("Coincident", 3, 2, 0, 1))
sketch6.addConstraint(Sketcher.Constraint("Coincident", 4, 2, 5, 1))
sketch6.addConstraint(Sketcher.Constraint("Coincident", 5, 2, 6, 1))
sketch6.addConstraint(Sketcher.Constraint("Coincident", 6, 2, 7, 1))
sketch6.addConstraint(Sketcher.Constraint("Coincident", 7, 2, 4, 1))
sketch6.addConstraint(Sketcher.Constraint("Coincident", 8, 2, 9, 1))
sketch6.addConstraint(Sketcher.Constraint("Coincident", 9, 2, 10, 1))
sketch6.addConstraint(Sketcher.Constraint("Coincident", 10, 2, 11, 1))
sketch6.addConstraint(Sketcher.Constraint("Coincident", 11, 2, 8, 1))
sketch6.addConstraint(Sketcher.Constraint("Coincident", 12, 2, 13, 1))
sketch6.addConstraint(Sketcher.Constraint("Coincident", 13, 2, 14, 1))
sketch6.addConstraint(Sketcher.Constraint("Coincident", 14, 2, 15, 1))
sketch6.addConstraint(Sketcher.Constraint("Coincident", 15, 2, 12, 1))
sketch6.addConstraint(Sketcher.Constraint("Coincident", 16, 2, 17, 1))
sketch6.addConstraint(Sketcher.Constraint("Coincident", 17, 2, 18, 1))
sketch6.addConstraint(Sketcher.Constraint("Coincident", 18, 2, 19, 1))
sketch6.addConstraint(Sketcher.Constraint("Coincident", 19, 2, 16, 1))
sketch6.addConstraint(Sketcher.Constraint("Coincident", 20, 2, 21, 1))
sketch6.addConstraint(Sketcher.Constraint("Coincident", 21, 2, 22, 1))
sketch6.addConstraint(Sketcher.Constraint("Coincident", 22, 2, 23, 1))
sketch6.addConstraint(Sketcher.Constraint("Coincident", 23, 2, 20, 1))
sketch6.addConstraint(Sketcher.Constraint("Coincident", 24, 2, 25, 1))
sketch6.addConstraint(Sketcher.Constraint("Coincident", 25, 2, 26, 1))
sketch6.addConstraint(Sketcher.Constraint("Coincident", 26, 2, 27, 1))
sketch6.addConstraint(Sketcher.Constraint("Coincident", 27, 2, 24, 1))
sketch6.addConstraint(Sketcher.Constraint("Coincident", 28, 2, 29, 1))
sketch6.addConstraint(Sketcher.Constraint("Coincident", 29, 2, 30, 1))
sketch6.addConstraint(Sketcher.Constraint("Coincident", 30, 2, 31, 1))
sketch6.addConstraint(Sketcher.Constraint("Coincident", 31, 2, 28, 1))
sketch6.addConstraint(Sketcher.Constraint("Coincident", 32, 2, 33, 1))
sketch6.addConstraint(Sketcher.Constraint("Coincident", 33, 2, 34, 1))
sketch6.addConstraint(Sketcher.Constraint("Coincident", 34, 2, 35, 1))
sketch6.addConstraint(Sketcher.Constraint("Coincident", 35, 2, 32, 1))
sketch6.addConstraint(Sketcher.Constraint("Coincident", 36, 2, 37, 1))
sketch6.addConstraint(Sketcher.Constraint("Coincident", 37, 2, 38, 1))
sketch6.addConstraint(Sketcher.Constraint("Coincident", 38, 2, 39, 1))
sketch6.addConstraint(Sketcher.Constraint("Coincident", 39, 2, 36, 1))
sketch6.addConstraint(Sketcher.Constraint("Coincident", 40, 2, 41, 1))
sketch6.addConstraint(Sketcher.Constraint("Coincident", 41, 2, 42, 1))
sketch6.addConstraint(Sketcher.Constraint("Coincident", 42, 2, 43, 1))
sketch6.addConstraint(Sketcher.Constraint("Coincident", 43, 2, 40, 1))
sketch6.addConstraint(Sketcher.Constraint("Coincident", 44, 2, 45, 1))
sketch6.addConstraint(Sketcher.Constraint("Coincident", 45, 2, 46, 1))
sketch6.addConstraint(Sketcher.Constraint("Coincident", 46, 2, 47, 1))
sketch6.addConstraint(Sketcher.Constraint("Coincident", 47, 2, 44, 1))
sketch6.addConstraint(Sketcher.Constraint("Coincident", 48, 2, 49, 1))
sketch6.addConstraint(Sketcher.Constraint("Coincident", 49, 2, 50, 1))
sketch6.addConstraint(Sketcher.Constraint("Coincident", 50, 2, 51, 1))
sketch6.addConstraint(Sketcher.Constraint("Coincident", 51, 2, 48, 1))
sketch6.addConstraint(Sketcher.Constraint("Coincident", 52, 2, 53, 1))
sketch6.addConstraint(Sketcher.Constraint("Coincident", 53, 2, 54, 1))
sketch6.addConstraint(Sketcher.Constraint("Coincident", 54, 2, 55, 1))
sketch6.addConstraint(Sketcher.Constraint("Coincident", 55, 2, 52, 1))
sketch6.addConstraint(Sketcher.Constraint("Coincident", 56, 2, 57, 1))
sketch6.addConstraint(Sketcher.Constraint("Coincident", 57, 2, 58, 1))
sketch6.addConstraint(Sketcher.Constraint("Coincident", 58, 2, 59, 1))
sketch6.addConstraint(Sketcher.Constraint("Coincident", 59, 2, 56, 1))
sketch6.addConstraint(Sketcher.Constraint("Coincident", 60, 2, 61, 1))
sketch6.addConstraint(Sketcher.Constraint("Coincident", 61, 2, 62, 1))
sketch6.addConstraint(Sketcher.Constraint("Coincident", 62, 2, 63, 1))
sketch6.addConstraint(Sketcher.Constraint("Coincident", 63, 2, 60, 1))
sketch6.addConstraint(Sketcher.Constraint("Coincident", 64, 2, 65, 1))
sketch6.addConstraint(Sketcher.Constraint("Coincident", 65, 2, 66, 1))
sketch6.addConstraint(Sketcher.Constraint("Coincident", 66, 2, 67, 1))
sketch6.addConstraint(Sketcher.Constraint("Coincident", 67, 2, 64, 1))
sketch6.addConstraint(Sketcher.Constraint("Coincident", 68, 2, 69, 1))
sketch6.addConstraint(Sketcher.Constraint("Coincident", 69, 2, 70, 1))
sketch6.addConstraint(Sketcher.Constraint("Coincident", 70, 2, 71, 1))
sketch6.addConstraint(Sketcher.Constraint("Coincident", 71, 2, 68, 1))
sketch6.addConstraint(Sketcher.Constraint("Coincident", 72, 2, 73, 1))
sketch6.addConstraint(Sketcher.Constraint("Coincident", 73, 2, 74, 1))
sketch6.addConstraint(Sketcher.Constraint("Coincident", 74, 2, 75, 1))
sketch6.addConstraint(Sketcher.Constraint("Coincident", 75, 2, 72, 1))
sketch6.addConstraint(Sketcher.Constraint("Coincident", 76, 2, 77, 1))
sketch6.addConstraint(Sketcher.Constraint("Coincident", 77, 2, 78, 1))
sketch6.addConstraint(Sketcher.Constraint("Coincident", 78, 2, 79, 1))
sketch6.addConstraint(Sketcher.Constraint("Coincident", 79, 2, 76, 1))
sketch6.addConstraint(Sketcher.Constraint("Vertical", 0))
sketch6.addConstraint(Sketcher.Constraint("Horizontal", 1))
sketch6.addConstraint(Sketcher.Constraint("Vertical", 2))
sketch6.addConstraint(Sketcher.Constraint("Horizontal", 3))
sketch6.addConstraint(Sketcher.Constraint("Vertical", 4))
sketch6.addConstraint(Sketcher.Constraint("Horizontal", 5))
sketch6.addConstraint(Sketcher.Constraint("Vertical", 6))
sketch6.addConstraint(Sketcher.Constraint("Horizontal", 7))
sketch6.addConstraint(Sketcher.Constraint("Vertical", 8))
sketch6.addConstraint(Sketcher.Constraint("Horizontal", 9))
sketch6.addConstraint(Sketcher.Constraint("Vertical", 10))
sketch6.addConstraint(Sketcher.Constraint("Horizontal", 11))
sketch6.addConstraint(Sketcher.Constraint("Vertical", 12))
sketch6.addConstraint(Sketcher.Constraint("Horizontal", 13))
sketch6.addConstraint(Sketcher.Constraint("Vertical", 14))
sketch6.addConstraint(Sketcher.Constraint("Horizontal", 15))
sketch6.addConstraint(Sketcher.Constraint("Vertical", 16))
sketch6.addConstraint(Sketcher.Constraint("Horizontal", 17))
sketch6.addConstraint(Sketcher.Constraint("Vertical", 18))
sketch6.addConstraint(Sketcher.Constraint("Horizontal", 19))
sketch6.addConstraint(Sketcher.Constraint("Vertical", 20))
sketch6.addConstraint(Sketcher.Constraint("Horizontal", 21))
sketch6.addConstraint(Sketcher.Constraint("Vertical", 22))
sketch6.addConstraint(Sketcher.Constraint("Horizontal", 23))
sketch6.addConstraint(Sketcher.Constraint("Vertical", 24))
sketch6.addConstraint(Sketcher.Constraint("Horizontal", 25))
sketch6.addConstraint(Sketcher.Constraint("Vertical", 26))
sketch6.addConstraint(Sketcher.Constraint("Horizontal", 27))
sketch6.addConstraint(Sketcher.Constraint("Vertical", 28))
sketch6.addConstraint(Sketcher.Constraint("Horizontal", 29))
sketch6.addConstraint(Sketcher.Constraint("Vertical", 30))
sketch6.addConstraint(Sketcher.Constraint("Horizontal", 31))
sketch6.addConstraint(Sketcher.Constraint("Vertical", 32))
sketch6.addConstraint(Sketcher.Constraint("Horizontal", 33))
sketch6.addConstraint(Sketcher.Constraint("Vertical", 34))
sketch6.addConstraint(Sketcher.Constraint("Horizontal", 35))
sketch6.addConstraint(Sketcher.Constraint("Vertical", 36))
sketch6.addConstraint(Sketcher.Constraint("Horizontal", 37))
sketch6.addConstraint(Sketcher.Constraint("Vertical", 38))
sketch6.addConstraint(Sketcher.Constraint("Horizontal", 39))
sketch6.addConstraint(Sketcher.Constraint("Vertical", 40))
sketch6.addConstraint(Sketcher.Constraint("Horizontal", 41))
sketch6.addConstraint(Sketcher.Constraint("Vertical", 42))
sketch6.addConstraint(Sketcher.Constraint("Horizontal", 43))
sketch6.addConstraint(Sketcher.Constraint("Vertical", 44))
sketch6.addConstraint(Sketcher.Constraint("Horizontal", 45))
sketch6.addConstraint(Sketcher.Constraint("Vertical", 46))
sketch6.addConstraint(Sketcher.Constraint("Horizontal", 47))
sketch6.addConstraint(Sketcher.Constraint("Vertical", 48))
sketch6.addConstraint(Sketcher.Constraint("Horizontal", 49))
sketch6.addConstraint(Sketcher.Constraint("Vertical", 50))
sketch6.addConstraint(Sketcher.Constraint("Horizontal", 51))
sketch6.addConstraint(Sketcher.Constraint("Vertical", 52))
sketch6.addConstraint(Sketcher.Constraint("Horizontal", 53))
sketch6.addConstraint(Sketcher.Constraint("Vertical", 54))
sketch6.addConstraint(Sketcher.Constraint("Horizontal", 55))
sketch6.addConstraint(Sketcher.Constraint("Vertical", 56))
sketch6.addConstraint(Sketcher.Constraint("Horizontal", 57))
sketch6.addConstraint(Sketcher.Constraint("Vertical", 58))
sketch6.addConstraint(Sketcher.Constraint("Horizontal", 59))
sketch6.addConstraint(Sketcher.Constraint("Vertical", 60))
sketch6.addConstraint(Sketcher.Constraint("Horizontal", 61))
sketch6.addConstraint(Sketcher.Constraint("Vertical", 62))
sketch6.addConstraint(Sketcher.Constraint("Horizontal", 63))
sketch6.addConstraint(Sketcher.Constraint("Vertical", 64))
sketch6.addConstraint(Sketcher.Constraint("Horizontal", 65))
sketch6.addConstraint(Sketcher.Constraint("Vertical", 66))
sketch6.addConstraint(Sketcher.Constraint("Horizontal", 67))
sketch6.addConstraint(Sketcher.Constraint("Vertical", 68))
sketch6.addConstraint(Sketcher.Constraint("Horizontal", 69))
sketch6.addConstraint(Sketcher.Constraint("Vertical", 70))
sketch6.addConstraint(Sketcher.Constraint("Horizontal", 71))
sketch6.addConstraint(Sketcher.Constraint("Vertical", 72))
sketch6.addConstraint(Sketcher.Constraint("Horizontal", 73))
sketch6.addConstraint(Sketcher.Constraint("Vertical", 74))
sketch6.addConstraint(Sketcher.Constraint("Horizontal", 75))
sketch6.addConstraint(Sketcher.Constraint("Vertical", 76))
sketch6.addConstraint(Sketcher.Constraint("Horizontal", 77))
sketch6.addConstraint(Sketcher.Constraint("Vertical", 78))
sketch6.addConstraint(Sketcher.Constraint("Horizontal", 79))
sketch6.addConstraint(Sketcher.Constraint("Horizontal", 1, 2, 4, 2))
sketch6.addConstraint(Sketcher.Constraint("Horizontal", 3, 2, 6, 2))
sketch6.addConstraint(Sketcher.Constraint("Horizontal", 5, 2, 8, 2))
sketch6.addConstraint(Sketcher.Constraint("Horizontal", 7, 2, 10, 2))
sketch6.addConstraint(Sketcher.Constraint("Horizontal", 9, 2, 12, 2))
sketch6.addConstraint(Sketcher.Constraint("Horizontal", 11, 2, 14, 2))
sketch6.addConstraint(Sketcher.Constraint("Horizontal", 13, 2, 16, 2))
sketch6.addConstraint(Sketcher.Constraint("Horizontal", 15, 2, 18, 2))
sketch6.addConstraint(Sketcher.Constraint("Horizontal", 17, 2, 20, 2))
sketch6.addConstraint(Sketcher.Constraint("Horizontal", 19, 2, 22, 2))
sketch6.addConstraint(Sketcher.Constraint("Horizontal", 21, 2, 24, 2))
sketch6.addConstraint(Sketcher.Constraint("Horizontal", 23, 2, 26, 2))
sketch6.addConstraint(Sketcher.Constraint("Horizontal", 25, 2, 28, 2))
sketch6.addConstraint(Sketcher.Constraint("Horizontal", 27, 2, 30, 2))
sketch6.addConstraint(Sketcher.Constraint("Horizontal", 29, 2, 32, 2))
sketch6.addConstraint(Sketcher.Constraint("Horizontal", 31, 2, 34, 2))
sketch6.addConstraint(Sketcher.Constraint("Horizontal", 33, 2, 36, 2))
sketch6.addConstraint(Sketcher.Constraint("Horizontal", 35, 2, 38, 2))
sketch6.addConstraint(Sketcher.Constraint("Horizontal", 37, 2, 40, 2))
sketch6.addConstraint(Sketcher.Constraint("Horizontal", 39, 2, 42, 2))
sketch6.addConstraint(Sketcher.Constraint("Horizontal", 41, 2, 44, 2))
sketch6.addConstraint(Sketcher.Constraint("Horizontal", 43, 2, 46, 2))
sketch6.addConstraint(Sketcher.Constraint("Horizontal", 45, 2, 48, 2))
sketch6.addConstraint(Sketcher.Constraint("Horizontal", 47, 2, 50, 2))
sketch6.addConstraint(Sketcher.Constraint("Horizontal", 49, 2, 52, 2))
sketch6.addConstraint(Sketcher.Constraint("Horizontal", 51, 2, 54, 2))
sketch6.addConstraint(Sketcher.Constraint("Horizontal", 53, 2, 56, 2))
sketch6.addConstraint(Sketcher.Constraint("Horizontal", 55, 2, 58, 2))
sketch6.addConstraint(Sketcher.Constraint("Horizontal", 57, 2, 60, 2))
sketch6.addConstraint(Sketcher.Constraint("Horizontal", 59, 2, 62, 2))
sketch6.addConstraint(Sketcher.Constraint("Horizontal", 61, 2, 64, 2))
sketch6.addConstraint(Sketcher.Constraint("Horizontal", 63, 2, 66, 2))
sketch6.addConstraint(Sketcher.Constraint("Horizontal", 65, 2, 68, 2))
sketch6.addConstraint(Sketcher.Constraint("Horizontal", 67, 2, 70, 2))
sketch6.addConstraint(Sketcher.Constraint("Horizontal", 69, 2, 72, 2))
sketch6.addConstraint(Sketcher.Constraint("Horizontal", 71, 2, 74, 2))
sketch6.addConstraint(Sketcher.Constraint("Horizontal", 73, 2, 76, 2))
sketch6.addConstraint(Sketcher.Constraint("Horizontal", 75, 2, 78, 2))
sketch6.addConstraint(Sketcher.Constraint("Equal", 3, 5))
sketch6.addConstraint(Sketcher.Constraint("Equal", 7, 9))
sketch6.addConstraint(Sketcher.Constraint("Equal", 11, 13))
sketch6.addConstraint(Sketcher.Constraint("Equal", 15, 17))
sketch6.addConstraint(Sketcher.Constraint("Equal", 19, 21))
sketch6.addConstraint(Sketcher.Constraint("Equal", 23, 25))
sketch6.addConstraint(Sketcher.Constraint("Equal", 27, 29))
sketch6.addConstraint(Sketcher.Constraint("Equal", 31, 33))
sketch6.addConstraint(Sketcher.Constraint("Equal", 35, 37))
sketch6.addConstraint(Sketcher.Constraint("Equal", 39, 41))
sketch6.addConstraint(Sketcher.Constraint("Equal", 43, 45))
sketch6.addConstraint(Sketcher.Constraint("Equal", 47, 49))
sketch6.addConstraint(Sketcher.Constraint("Equal", 51, 53))
sketch6.addConstraint(Sketcher.Constraint("Equal", 55, 57))
sketch6.addConstraint(Sketcher.Constraint("Equal", 59, 61))
sketch6.addConstraint(Sketcher.Constraint("Equal", 63, 65))
sketch6.addConstraint(Sketcher.Constraint("Equal", 67, 69))
sketch6.addConstraint(Sketcher.Constraint("Equal", 71, 73))
sketch6.addConstraint(Sketcher.Constraint("Equal", 75, 77))
sketch6.addConstraint(Sketcher.Constraint("DistanceY", 0, 2, 0, 1, 5.0))
sketch6.addConstraint(Sketcher.Constraint("DistanceX", 1, 1, 1, 2, 1.3))
sketch6.addConstraint(Sketcher.Constraint("DistanceY", -1, 1, 0, 2, 23.0))
sketch6.addConstraint(Sketcher.Constraint("DistanceX", -1, 1, 0, 2, 28.4457))
sketch6.addConstraint(Sketcher.Constraint("DistanceX", -1, 1, 4, 2, 25.9057))
sketch6.addConstraint(Sketcher.Constraint("DistanceX", -1, 1, 8, 2, 23.3657))
sketch6.addConstraint(Sketcher.Constraint("DistanceX", -1, 1, 12, 2, 20.8257))
sketch6.addConstraint(Sketcher.Constraint("DistanceX", -1, 1, 16, 2, 18.2857))
sketch6.addConstraint(Sketcher.Constraint("DistanceX", -1, 1, 20, 2, 15.7457))
sketch6.addConstraint(Sketcher.Constraint("DistanceX", -1, 1, 24, 2, 13.2057))
sketch6.addConstraint(Sketcher.Constraint("DistanceX", -1, 1, 28, 2, 10.6657))
sketch6.addConstraint(Sketcher.Constraint("DistanceX", -1, 1, 32, 2, 8.1257))
sketch6.addConstraint(Sketcher.Constraint("DistanceX", -1, 1, 36, 2, 5.5857))
sketch6.addConstraint(Sketcher.Constraint("DistanceX", -1, 1, 40, 2, 3.0457))
sketch6.addConstraint(Sketcher.Constraint("DistanceX", -1, 1, 44, 2, 0.5057))
sketch6.addConstraint(Sketcher.Constraint("DistanceX", 48, 2, -1, 1, 2.0343))
sketch6.addConstraint(Sketcher.Constraint("DistanceX", 52, 2, -1, 1, 4.5743))
sketch6.addConstraint(Sketcher.Constraint("DistanceX", 56, 2, -1, 1, 7.1143))
sketch6.addConstraint(Sketcher.Constraint("DistanceX", 60, 2, -1, 1, 9.6543))
sketch6.addConstraint(Sketcher.Constraint("DistanceX", 64, 2, -1, 1, 12.1943))
sketch6.addConstraint(Sketcher.Constraint("DistanceX", 68, 2, -1, 1, 14.7343))
sketch6.addConstraint(Sketcher.Constraint("DistanceX", 72, 2, -1, 1, 17.2743))
sketch6.addConstraint(Sketcher.Constraint("DistanceX", 76, 2, -1, 1, 19.8143))
pocket3 = doc.addObject("PartDesign::Pocket", "Pocket002")
body.addObject(pocket3)
pocket3.Profile = sketch6
pocket3.Length = 2

doc.recompute()
